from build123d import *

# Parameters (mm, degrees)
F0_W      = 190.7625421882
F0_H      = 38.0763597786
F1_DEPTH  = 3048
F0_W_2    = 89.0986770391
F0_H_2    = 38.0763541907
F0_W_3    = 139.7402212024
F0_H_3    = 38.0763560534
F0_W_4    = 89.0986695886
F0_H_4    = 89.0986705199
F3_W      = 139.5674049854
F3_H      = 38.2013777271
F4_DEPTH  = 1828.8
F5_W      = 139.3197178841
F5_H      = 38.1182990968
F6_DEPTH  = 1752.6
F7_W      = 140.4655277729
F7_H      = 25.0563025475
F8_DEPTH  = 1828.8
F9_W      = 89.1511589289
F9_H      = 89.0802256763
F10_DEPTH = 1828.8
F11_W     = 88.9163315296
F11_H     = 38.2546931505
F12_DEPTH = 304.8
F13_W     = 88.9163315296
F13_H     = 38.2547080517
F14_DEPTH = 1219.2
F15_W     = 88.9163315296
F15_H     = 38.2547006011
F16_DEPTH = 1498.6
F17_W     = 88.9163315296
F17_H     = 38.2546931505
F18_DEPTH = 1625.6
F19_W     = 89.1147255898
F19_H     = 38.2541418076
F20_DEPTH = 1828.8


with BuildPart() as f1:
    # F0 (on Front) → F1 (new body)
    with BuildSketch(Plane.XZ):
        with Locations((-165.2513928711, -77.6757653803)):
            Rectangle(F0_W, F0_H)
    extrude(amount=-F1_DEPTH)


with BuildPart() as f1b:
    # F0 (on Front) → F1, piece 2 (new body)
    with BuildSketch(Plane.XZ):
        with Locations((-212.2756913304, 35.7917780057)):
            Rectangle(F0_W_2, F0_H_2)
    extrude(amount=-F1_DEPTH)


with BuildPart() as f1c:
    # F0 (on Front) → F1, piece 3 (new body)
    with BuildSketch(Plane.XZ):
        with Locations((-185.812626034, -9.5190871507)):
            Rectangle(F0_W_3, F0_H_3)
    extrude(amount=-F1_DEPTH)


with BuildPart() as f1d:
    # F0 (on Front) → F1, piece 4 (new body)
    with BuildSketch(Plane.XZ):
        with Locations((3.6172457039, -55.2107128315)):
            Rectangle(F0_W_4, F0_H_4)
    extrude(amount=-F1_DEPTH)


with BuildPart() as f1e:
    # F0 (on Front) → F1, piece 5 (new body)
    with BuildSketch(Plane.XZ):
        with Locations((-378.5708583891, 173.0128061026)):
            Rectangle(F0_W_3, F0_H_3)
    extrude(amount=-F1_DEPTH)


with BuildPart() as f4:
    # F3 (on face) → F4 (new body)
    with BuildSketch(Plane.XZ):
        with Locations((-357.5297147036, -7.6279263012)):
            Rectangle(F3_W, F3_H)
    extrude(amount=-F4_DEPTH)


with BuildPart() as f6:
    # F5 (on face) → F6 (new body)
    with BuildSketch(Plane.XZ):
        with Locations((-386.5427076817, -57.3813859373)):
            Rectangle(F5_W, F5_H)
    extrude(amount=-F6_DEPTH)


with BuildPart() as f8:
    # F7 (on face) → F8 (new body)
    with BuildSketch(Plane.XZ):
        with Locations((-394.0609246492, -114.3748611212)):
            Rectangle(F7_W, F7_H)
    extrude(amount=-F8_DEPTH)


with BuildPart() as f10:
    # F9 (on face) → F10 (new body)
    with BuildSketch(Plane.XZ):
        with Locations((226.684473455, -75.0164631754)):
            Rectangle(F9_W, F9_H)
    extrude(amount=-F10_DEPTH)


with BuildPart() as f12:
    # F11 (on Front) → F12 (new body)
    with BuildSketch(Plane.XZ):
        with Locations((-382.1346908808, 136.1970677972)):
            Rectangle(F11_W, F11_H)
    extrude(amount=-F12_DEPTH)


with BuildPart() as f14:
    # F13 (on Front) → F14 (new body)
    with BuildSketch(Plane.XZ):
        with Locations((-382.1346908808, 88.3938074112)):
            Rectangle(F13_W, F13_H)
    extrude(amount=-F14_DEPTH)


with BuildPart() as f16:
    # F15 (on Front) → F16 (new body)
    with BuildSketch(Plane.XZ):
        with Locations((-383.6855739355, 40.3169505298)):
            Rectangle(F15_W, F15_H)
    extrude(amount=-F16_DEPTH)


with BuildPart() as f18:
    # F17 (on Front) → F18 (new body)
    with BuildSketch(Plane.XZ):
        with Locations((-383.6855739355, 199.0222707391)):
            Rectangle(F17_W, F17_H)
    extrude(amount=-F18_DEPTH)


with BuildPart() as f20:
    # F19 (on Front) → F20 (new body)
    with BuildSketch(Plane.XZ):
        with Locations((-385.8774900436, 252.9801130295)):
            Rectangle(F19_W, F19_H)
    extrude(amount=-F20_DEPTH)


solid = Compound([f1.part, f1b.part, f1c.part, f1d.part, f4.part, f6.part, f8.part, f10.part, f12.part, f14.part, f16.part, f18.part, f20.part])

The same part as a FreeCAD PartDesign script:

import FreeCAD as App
import Part
import Sketcher

V = App.Vector
Q = App.Units.Quantity

doc = App.newDocument("Part")
body = doc.addObject("PartDesign::Body", "Body")

sketch1 = body.newObject("Sketcher::SketchObject", "Sketch")
sketch1.AttachmentSupport = (doc.getObject("XZ_Plane"), [""])
sketch1.MapMode = "FlatFace"
sketch1.addGeometry([
    Part.LineSegment(V(-261, -59, 0), V(-261, -97, 0)),
    Part.LineSegment(V(-261, -97, 0), V(-70, -97, 0)),
    Part.LineSegment(V(-70, -97, 0), V(-70, -59, 0)),
    Part.LineSegment(V(-70, -59, 0), V(-261, -59, 0)),
], False)
sketch1.addConstraint([
    Sketcher.Constraint("Coincident", 0, 2, 1, 1),
    Sketcher.Constraint("Coincident", 1, 2, 2, 1),
    Sketcher.Constraint("Coincident", 2, 2, 3, 1),
    Sketcher.Constraint("Coincident", 3, 2, 0, 1),
    Sketcher.Constraint("Vertical", 0),
    Sketcher.Constraint("Horizontal", 1),
    Sketcher.Constraint("Vertical", 2),
    Sketcher.Constraint("Horizontal", 3),
    Sketcher.Constraint("DistanceY", 0, 2, 0, 1, 38.07636),
    Sketcher.Constraint("DistanceX", 1, 1, 1, 2, 190.762542),
    Sketcher.Constraint("DistanceX", 1, 2, -1, 1, 69.870122),
    Sketcher.Constraint("DistanceY", 0, 2, -1, 1, 96.713945),
])
pad1 = body.newObject("PartDesign::Pad", "Pad")
pad1.Profile = sketch1
pad1.Length = Q("120 in")
pad1.Reversed = True
body2 = doc.addObject("PartDesign::Body", "Body001")

sketch2 = body2.newObject("Sketcher::SketchObject", "Sketch001")
sketch2.AttachmentSupport = (doc.getObject("XZ_Plane001"), [""])
sketch2.MapMode = "FlatFace"
sketch2.addGeometry([
    Part.LineSegment(V(-257, 55, 0), V(-257, 17, 0)),
    Part.LineSegment(V(-257, 17, 0), V(-168, 17, 0)),
    Part.LineSegment(V(-168, 17, 0), V(-168, 55, 0)),
    Part.LineSegment(V(-168, 55, 0), V(-257, 55, 0)),
], False)
sketch2.addConstraint([
    Sketcher.Constraint("Coincident", 0, 2, 1, 1),
    Sketcher.Constraint("Coincident", 1, 2, 2, 1),
    Sketcher.Constraint("Coincident", 2, 2, 3, 1),
    Sketcher.Constraint("Coincident", 3, 2, 0, 1),
    Sketcher.Constraint("Vertical", 0),
    Sketcher.Constraint("Horizontal", 1),
    Sketcher.Constraint("Vertical", 2),
    Sketcher.Constraint("Horizontal", 3),
    Sketcher.Constraint("DistanceY", -1, 1, 0, 2, 16.753601),
    Sketcher.Constraint("DistanceX", 1, 1, 1, 2, 89.098677),
    Sketcher.Constraint("DistanceY", 0, 2, 0, 1, 38.076354),
    Sketcher.Constraint("DistanceX", 0, 2, -1, 1, 256.82503),
])
pad2 = body2.newObject("PartDesign::Pad", "Pad001")
pad2.Profile = sketch2
pad2.Length = Q("120 in")
pad2.Reversed = True
body3 = doc.addObject("PartDesign::Body", "Body002")

sketch3 = body3.newObject("Sketcher::SketchObject", "Sketch002")
sketch3.AttachmentSupport = (doc.getObject("XZ_Plane002"), [""])
sketch3.MapMode = "FlatFace"
sketch3.addGeometry([
    Part.LineSegment(V(-256, 10, 0), V(-256, -29, 0)),
    Part.LineSegment(V(-256, -29, 0), V(-116, -29, 0)),
    Part.LineSegment(V(-116, -29, 0), V(-116, 10, 0)),
    Part.LineSegment(V(-116, 10, 0), V(-256, 10, 0)),
], False)
sketch3.addConstraint([
    Sketcher.Constraint("Coincident", 0, 2, 1, 1),
    Sketcher.Constraint("Coincident", 1, 2, 2, 1),
    Sketcher.Constraint("Coincident", 2, 2, 3, 1),
    Sketcher.Constraint("Coincident", 3, 2, 0, 1),
    Sketcher.Constraint("Vertical", 0),
    Sketcher.Constraint("Horizontal", 1),
    Sketcher.Constraint("Vertical", 2),
    Sketcher.Constraint("Horizontal", 3),
    Sketcher.Constraint("DistanceX", 1, 1, 1, 2, 139.740221),
    Sketcher.Constraint("DistanceY", 0, 2, 0, 1, 38.076356),
    Sketcher.Constraint("DistanceY", -1, 1, 2, 2, 9.519091),
    Sketcher.Constraint("DistanceX", 0, 2, -1, 1, 255.682737),
])
pad3 = body3.newObject("PartDesign::Pad", "Pad002")
pad3.Profile = sketch3
pad3.Length = Q("120 in")
pad3.Reversed = True
body4 = doc.addObject("PartDesign::Body", "Body003")

sketch4 = body4.newObject("Sketcher::SketchObject", "Sketch003")
sketch4.AttachmentSupport = (doc.getObject("XZ_Plane003"), [""])
sketch4.MapMode = "FlatFace"
sketch4.addGeometry([
    Part.LineSegment(V(-41, -11, 0), V(-41, -100, 0)),
    Part.LineSegment(V(-41, -100, 0), V(48, -100, 0)),
    Part.LineSegment(V(48, -100, 0), V(48, -11, 0)),
    Part.LineSegment(V(48, -11, 0), V(-41, -11, 0)),
], False)
sketch4.addConstraint([
    Sketcher.Constraint("Coincident", 0, 2, 1, 1),
    Sketcher.Constraint("Coincident", 1, 2, 2, 1),
    Sketcher.Constraint("Coincident", 2, 2, 3, 1),
    Sketcher.Constraint("Coincident", 3, 2, 0, 1),
    Sketcher.Constraint("Vertical", 0),
    Sketcher.Constraint("Horizontal", 1),
    Sketcher.Constraint("Vertical", 2),
    Sketcher.Constraint("Horizontal", 3),
    Sketcher.Constraint("Equal", 3, 0),
    Sketcher.Constraint("DistanceX", 1, 1, 1, 2, 89.09867),
    Sketcher.Constraint("DistanceX", 0, 2, -1, 1, 40.932089),
    Sketcher.Constraint("DistanceY", 0, 2, -1, 1, 99.760048),
])
pad4 = body4.newObject("PartDesign::Pad", "Pad003")
pad4.Profile = sketch4
pad4.Length = Q("120 in")
pad4.Reversed = True
body5 = doc.addObject("PartDesign::Body", "Body004")

sketch5 = body5.newObject("Sketcher::SketchObject", "Sketch004")
sketch5.AttachmentSupport = (doc.getObject("XZ_Plane004"), [""])
sketch5.MapMode = "FlatFace"
sketch5.addGeometry([
    Part.LineSegment(V(-448, 192, 0), V(-448, 154, 0)),
    Part.LineSegment(V(-448, 154, 0), V(-309, 154, 0)),
    Part.LineSegment(V(-309, 154, 0), V(-309, 192, 0)),
    Part.LineSegment(V(-309, 192, 0), V(-448, 192, 0)),
], False)
sketch5.addConstraint([
    Sketcher.Constraint("Coincident", 0, 2, 1, 1),
    Sketcher.Constraint("Coincident", 1, 2, 2, 1),
    Sketcher.Constraint("Coincident", 2, 2, 3, 1),
    Sketcher.Constraint("Coincident", 3, 2, 0, 1),
    Sketcher.Constraint("Vertical", 0),
    Sketcher.Constraint("Horizontal", 1),
    Sketcher.Constraint("Vertical", 2),
    Sketcher.Constraint("Horizontal", 3),
    Sketcher.Constraint("DistanceX", 1, 1, 1, 2, 139.740221),
    Sketcher.Constraint("DistanceY", 0, 2, 0, 1, 38.076356),
    Sketcher.Constraint("DistanceX", 0, 2, -1, 1, 448.440969),
    Sketcher.Constraint("DistanceY", -1, 1, 0, 2, 153.974628),
])
pad5 = body5.newObject("PartDesign::Pad", "Pad004")
pad5.Profile = sketch5
pad5.Length = Q("120 in")
pad5.Reversed = True
body6 = doc.addObject("PartDesign::Body", "Body005")

sketch6 = body6.newObject("Sketcher::SketchObject", "Sketch005")
sketch6.AttachmentSupport = (doc.getObject("XZ_Plane005"), [""])
sketch6.MapMode = "FlatFace"
sketch6.addGeometry([
    Part.LineSegment(V(-427, 11, 0), V(-427, -27, 0)),
    Part.LineSegment(V(-427, -27, 0), V(-288, -27, 0)),
    Part.LineSegment(V(-288, -27, 0), V(-288, 11, 0)),
    Part.LineSegment(V(-288, 11, 0), V(-427, 11, 0)),
], False)
sketch6.addConstraint([
    Sketcher.Constraint("Coincident", 0, 2, 1, 1),
    Sketcher.Constraint("Coincident", 1, 2, 2, 1),
    Sketcher.Constraint("Coincident", 2, 2, 3, 1),
    Sketcher.Constraint("Coincident", 3, 2, 0, 1),
    Sketcher.Constraint("Vertical", 0),
    Sketcher.Constraint("Horizontal", 1),
    Sketcher.Constraint("Vertical", 2),
    Sketcher.Constraint("Horizontal", 3),
    Sketcher.Constraint("DistanceX", 1, 1, 1, 2, 139.567405),
    Sketcher.Constraint("DistanceY", 0, 2, 0, 1, 38.201378),
    Sketcher.Constraint("DistanceX", 0, 2, -1, 1, 427.313417),
    Sketcher.Constraint("DistanceY", 0, 2, -1, 1, 26.728615),
])
pad6 = body6.newObject("PartDesign::Pad", "Pad005")
pad6.Profile = sketch6
pad6.Length = Q("72 in")
pad6.Reversed = True
body7 = doc.addObject("PartDesign::Body", "Body006")

sketch7 = body7.newObject("Sketcher::SketchObject", "Sketch006")
sketch7.AttachmentSupport = (doc.getObject("XZ_Plane006"), [""])
sketch7.MapMode = "FlatFace"
sketch7.addGeometry([
    Part.LineSegment(V(-456, -38, 0), V(-456, -76, 0)),
    Part.LineSegment(V(-456, -76, 0), V(-317, -76, 0)),
    Part.LineSegment(V(-317, -76, 0), V(-317, -38, 0)),
    Part.LineSegment(V(-317, -38, 0), V(-456, -38, 0)),
], False)
sketch7.addConstraint([
    Sketcher.Constraint("Coincident", 0, 2, 1, 1),
    Sketcher.Constraint("Coincident", 1, 2, 2, 1),
    Sketcher.Constraint("Coincident", 2, 2, 3, 1),
    Sketcher.Constraint("Coincident", 3, 2, 0, 1),
    Sketcher.Constraint("Vertical", 0),
    Sketcher.Constraint("Horizontal", 1),
    Sketcher.Constraint("Vertical", 2),
    Sketcher.Constraint("Horizontal", 3),
    Sketcher.Constraint("DistanceY", 0, 2, 0, 1, 38.118299),
    Sketcher.Constraint("DistanceX", 1, 1, 1, 2, 139.319718),
    Sketcher.Constraint("DistanceX", 1, 2, -1, 1, 316.882849),
    Sketcher.Constraint("DistanceY", 0, 2, -1, 1, 76.440535),
])
pad7 = body7.newObject("PartDesign::Pad", "Pad006")
pad7.Profile = sketch7
pad7.Length = Q("69 in")
pad7.Reversed = True
body8 = doc.addObject("PartDesign::Body", "Body007")

sketch8 = body8.newObject("Sketcher::SketchObject", "Sketch007")
sketch8.AttachmentSupport = (doc.getObject("XZ_Plane007"), [""])
sketch8.MapMode = "FlatFace"
sketch8.addGeometry([
    Part.LineSegment(V(-464, -102, 0), V(-464, -127, 0)),
    Part.LineSegment(V(-464, -127, 0), V(-324, -127, 0)),
    Part.LineSegment(V(-324, -127, 0), V(-324, -102, 0)),
    Part.LineSegment(V(-324, -102, 0), V(-464, -102, 0)),
], False)
sketch8.addConstraint([
    Sketcher.Constraint("Coincident", 0, 2, 1, 1),
    Sketcher.Constraint("Coincident", 1, 2, 2, 1),
    Sketcher.Constraint("Coincident", 2, 2, 3, 1),
    Sketcher.Constraint("Coincident", 3, 2, 0, 1),
    Sketcher.Constraint("Vertical", 0),
    Sketcher.Constraint("Horizontal", 1),
    Sketcher.Constraint("Vertical", 2),
    Sketcher.Constraint("Horizontal", 3),
    Sketcher.Constraint("DistanceX", 1, 1, 1, 2, 140.465528),
    Sketcher.Constraint("DistanceY", 0, 2, 0, 1, 25.056303),
    Sketcher.Constraint("DistanceX", 0, 2, -1, 1, 464.293689),
    Sketcher.Constraint("DistanceY", 2, 2, -1, 1, 101.84671),
])
pad8 = body8.newObject("PartDesign::Pad", "Pad007")
pad8.Profile = sketch8
pad8.Length = Q("72 in")
pad8.Reversed = True
body9 = doc.addObject("PartDesign::Body", "Body008")

sketch9 = body9.newObject("Sketcher::SketchObject", "Sketch008")
sketch9.AttachmentSupport = (doc.getObject("XZ_Plane008"), [""])
sketch9.MapMode = "FlatFace"
sketch9.addGeometry([
    Part.LineSegment(V(182, -30, 0), V(182, -120, 0)),
    Part.LineSegment(V(182, -120, 0), V(271, -120, 0)),
    Part.LineSegment(V(271, -120, 0), V(271, -30, 0)),
    Part.LineSegment(V(271, -30, 0), V(182, -30, 0)),
], False)
sketch9.addConstraint([
    Sketcher.Constraint("Coincident", 0, 2, 1, 1),
    Sketcher.Constraint("Coincident", 1, 2, 2, 1),
    Sketcher.Constraint("Coincident", 2, 2, 3, 1),
    Sketcher.Constraint("Coincident", 3, 2, 0, 1),
    Sketcher.Constraint("Vertical", 0),
    Sketcher.Constraint("Horizontal", 1),
    Sketcher.Constraint("Vertical", 2),
    Sketcher.Constraint("Horizontal", 3),
    Sketcher.Constraint("DistanceX", 1, 1, 1, 2, 89.151159),
    Sketcher.Constraint("DistanceY", 0, 2, 0, 1, 89.080226),
    Sketcher.Constraint("DistanceY", 2, 2, -1, 1, 30.47635),
    Sketcher.Constraint("DistanceX", -1, 1, 0, 2, 182.108894),
])
pad9 = body9.newObject("PartDesign::Pad", "Pad008")
pad9.Profile = sketch9
pad9.Length = Q("72 in")
pad9.Reversed = True
body10 = doc.addObject("PartDesign::Body", "Body009")

sketch10 = body10.newObject("Sketcher::SketchObject", "Sketch009")
sketch10.AttachmentSupport = (doc.getObject("XZ_Plane009"), [""])
sketch10.MapMode = "FlatFace"
sketch10.addGeometry([
    Part.LineSegment(V(-427, 155, 0), V(-427, 117, 0)),
    Part.LineSegment(V(-427, 117, 0), V(-338, 117, 0)),
    Part.LineSegment(V(-338, 117, 0), V(-338, 155, 0)),
    Part.LineSegment(V(-338, 155, 0), V(-427, 155, 0)),
], False)
sketch10.addConstraint([
    Sketcher.Constraint("Coincident", 0, 2, 1, 1),
    Sketcher.Constraint("Coincident", 1, 2, 2, 1),
    Sketcher.Constraint("Coincident", 2, 2, 3, 1),
    Sketcher.Constraint("Coincident", 3, 2, 0, 1),
    Sketcher.Constraint("Vertical", 0),
    Sketcher.Constraint("Horizontal", 1),
    Sketcher.Constraint("Vertical", 2),
    Sketcher.Constraint("Horizontal", 3),
    Sketcher.Constraint("DistanceX", 1, 1, 1, 2, 88.916332),
    Sketcher.Constraint("DistanceY", 0, 2, 0, 1, 38.254693),
    Sketcher.Constraint("DistanceY", -1, 1, 0, 2, 117.069721),
    Sketcher.Constraint("DistanceX", 0, 2, -1, 1, 426.592857),
])
pad10 = body10.newObject("PartDesign::Pad", "Pad009")
pad10.Profile = sketch10
pad10.Length = Q("12 in")
pad10.Reversed = True
body11 = doc.addObject("PartDesign::Body", "Body010")

sketch11 = body11.newObject("Sketcher::SketchObject", "Sketch010")
sketch11.AttachmentSupport = (doc.getObject("XZ_Plane010"), [""])
sketch11.MapMode = "FlatFace"
sketch11.addGeometry([
    Part.LineSegment(V(-427, 108, 0), V(-427, 69, 0)),
    Part.LineSegment(V(-427, 69, 0), V(-338, 69, 0)),
    Part.LineSegment(V(-338, 69, 0), V(-338, 108, 0)),
    Part.LineSegment(V(-338, 108, 0), V(-427, 108, 0)),
], False)
sketch11.addConstraint([
    Sketcher.Constraint("Coincident", 0, 2, 1, 1),
    Sketcher.Constraint("Coincident", 1, 2, 2, 1),
    Sketcher.Constraint("Coincident", 2, 2, 3, 1),
    Sketcher.Constraint("Coincident", 3, 2, 0, 1),
    Sketcher.Constraint("Vertical", 0),
    Sketcher.Constraint("Horizontal", 1),
    Sketcher.Constraint("Vertical", 2),
    Sketcher.Constraint("Horizontal", 3),
    Sketcher.Constraint("DistanceX", 1, 1, 1, 2, 88.916332),
    Sketcher.Constraint("DistanceY", 0, 2, 0, 1, 38.254708),
    Sketcher.Constraint("DistanceY", -1, 1, 2, 2, 107.521161),
    Sketcher.Constraint("DistanceX", 0, 2, -1, 1, 426.592857),
])
pad11 = body11.newObject("PartDesign::Pad", "Pad010")
pad11.Profile = sketch11
pad11.Length = Q("48 in")
pad11.Reversed = True
body12 = doc.addObject("PartDesign::Body", "Body011")

sketch12 = body12.newObject("Sketcher::SketchObject", "Sketch011")
sketch12.AttachmentSupport = (doc.getObject("XZ_Plane011"), [""])
sketch12.MapMode = "FlatFace"
sketch12.addGeometry([
    Part.LineSegment(V(-428, 59, 0), V(-428, 21, 0)),
    Part.LineSegment(V(-428, 21, 0), V(-339, 21, 0)),
    Part.LineSegment(V(-339, 21, 0), V(-339, 59, 0)),
    Part.LineSegment(V(-339, 59, 0), V(-428, 59, 0)),
], False)
sketch12.addConstraint([
    Sketcher.Constraint("Coincident", 0, 2, 1, 1),
    Sketcher.Constraint("Coincident", 1, 2, 2, 1),
    Sketcher.Constraint("Coincident", 2, 2, 3, 1),
    Sketcher.Constraint("Coincident", 3, 2, 0, 1),
    Sketcher.Constraint("Vertical", 0),
    Sketcher.Constraint("Horizontal", 1),
    Sketcher.Constraint("Vertical", 2),
    Sketcher.Constraint("Horizontal", 3),
    Sketcher.Constraint("DistanceY", 0, 2, 0, 1, 38.254701),
    Sketcher.Constraint("DistanceX", 1, 1, 1, 2, 88.916332),
    Sketcher.Constraint("DistanceY", -1, 1, 0, 2, 21.1896),
    Sketcher.Constraint("DistanceX", 0, 2, -1, 1, 428.14374),
])
pad12 = body12.newObject("PartDesign::Pad", "Pad011")
pad12.Profile = sketch12
pad12.Length = Q("59 in")
pad12.Reversed = True
body13 = doc.addObject("PartDesign::Body", "Body012")

sketch13 = body13.newObject("Sketcher::SketchObject", "Sketch012")
sketch13.AttachmentSupport = (doc.getObject("XZ_Plane012"), [""])
sketch13.MapMode = "FlatFace"
sketch13.addGeometry([
    Part.LineSegment(V(-428, 218, 0), V(-428, 180, 0)),
    Part.LineSegment(V(-428, 180, 0), V(-339, 180, 0)),
    Part.LineSegment(V(-339, 180, 0), V(-339, 218, 0)),
    Part.LineSegment(V(-339, 218, 0), V(-428, 218, 0)),
], False)
sketch13.addConstraint([
    Sketcher.Constraint("Coincident", 0, 2, 1, 1),
    Sketcher.Constraint("Coincident", 1, 2, 2, 1),
    Sketcher.Constraint("Coincident", 2, 2, 3, 1),
    Sketcher.Constraint("Coincident", 3, 2, 0, 1),
    Sketcher.Constraint("Vertical", 0),
    Sketcher.Constraint("Horizontal", 1),
    Sketcher.Constraint("Vertical", 2),
    Sketcher.Constraint("Horizontal", 3),
    Sketcher.Constraint("DistanceX", 1, 1, 1, 2, 88.916332),
    Sketcher.Constraint("DistanceY", 0, 2, 0, 1, 38.254693),
    Sketcher.Constraint("DistanceX", 0, 2, -1, 1, 428.14374),
    Sketcher.Constraint("DistanceY", -1, 1, 0, 2, 179.894924),
])
pad13 = body13.newObject("PartDesign::Pad", "Pad012")
pad13.Profile = sketch13
pad13.Length = Q("64 in")
pad13.Reversed = True
body14 = doc.addObject("PartDesign::Body", "Body013")

sketch14 = body14.newObject("Sketcher::SketchObject", "Sketch013")
sketch14.AttachmentSupport = (doc.getObject("XZ_Plane013"), [""])
sketch14.MapMode = "FlatFace"
sketch14.addGeometry([
    Part.LineSegment(V(-430, 272, 0), V(-430, 234, 0)),
    Part.LineSegment(V(-430, 234, 0), V(-341, 234, 0)),
    Part.LineSegment(V(-341, 234, 0), V(-341, 272, 0)),
    Part.LineSegment(V(-341, 272, 0), V(-430, 272, 0)),
], False)
sketch14.addConstraint([
    Sketcher.Constraint("Coincident", 0, 2, 1, 1),
    Sketcher.Constraint("Coincident", 1, 2, 2, 1),
    Sketcher.Constraint("Coincident", 2, 2, 3, 1),
    Sketcher.Constraint("Coincident", 3, 2, 0, 1),
    Sketcher.Constraint("Vertical", 0),
    Sketcher.Constraint("Horizontal", 1),
    Sketcher.Constraint("Vertical", 2),
    Sketcher.Constraint("Horizontal", 3),
    Sketcher.Constraint("DistanceY", 0, 2, 0, 1, 38.254142),
    Sketcher.Constraint("DistanceX", 1, 1, 1, 2, 89.114726),
    Sketcher.Constraint("DistanceX", 0, 2, -1, 1, 430.434853),
    Sketcher.Constraint("DistanceY", -1, 1, 0, 2, 233.853042),
])
pad14 = body14.newObject("PartDesign::Pad", "Pad013")
pad14.Profile = sketch14
pad14.Length = Q("72 in")
pad14.Reversed = True
body5.Visibility = False

doc.recompute()
